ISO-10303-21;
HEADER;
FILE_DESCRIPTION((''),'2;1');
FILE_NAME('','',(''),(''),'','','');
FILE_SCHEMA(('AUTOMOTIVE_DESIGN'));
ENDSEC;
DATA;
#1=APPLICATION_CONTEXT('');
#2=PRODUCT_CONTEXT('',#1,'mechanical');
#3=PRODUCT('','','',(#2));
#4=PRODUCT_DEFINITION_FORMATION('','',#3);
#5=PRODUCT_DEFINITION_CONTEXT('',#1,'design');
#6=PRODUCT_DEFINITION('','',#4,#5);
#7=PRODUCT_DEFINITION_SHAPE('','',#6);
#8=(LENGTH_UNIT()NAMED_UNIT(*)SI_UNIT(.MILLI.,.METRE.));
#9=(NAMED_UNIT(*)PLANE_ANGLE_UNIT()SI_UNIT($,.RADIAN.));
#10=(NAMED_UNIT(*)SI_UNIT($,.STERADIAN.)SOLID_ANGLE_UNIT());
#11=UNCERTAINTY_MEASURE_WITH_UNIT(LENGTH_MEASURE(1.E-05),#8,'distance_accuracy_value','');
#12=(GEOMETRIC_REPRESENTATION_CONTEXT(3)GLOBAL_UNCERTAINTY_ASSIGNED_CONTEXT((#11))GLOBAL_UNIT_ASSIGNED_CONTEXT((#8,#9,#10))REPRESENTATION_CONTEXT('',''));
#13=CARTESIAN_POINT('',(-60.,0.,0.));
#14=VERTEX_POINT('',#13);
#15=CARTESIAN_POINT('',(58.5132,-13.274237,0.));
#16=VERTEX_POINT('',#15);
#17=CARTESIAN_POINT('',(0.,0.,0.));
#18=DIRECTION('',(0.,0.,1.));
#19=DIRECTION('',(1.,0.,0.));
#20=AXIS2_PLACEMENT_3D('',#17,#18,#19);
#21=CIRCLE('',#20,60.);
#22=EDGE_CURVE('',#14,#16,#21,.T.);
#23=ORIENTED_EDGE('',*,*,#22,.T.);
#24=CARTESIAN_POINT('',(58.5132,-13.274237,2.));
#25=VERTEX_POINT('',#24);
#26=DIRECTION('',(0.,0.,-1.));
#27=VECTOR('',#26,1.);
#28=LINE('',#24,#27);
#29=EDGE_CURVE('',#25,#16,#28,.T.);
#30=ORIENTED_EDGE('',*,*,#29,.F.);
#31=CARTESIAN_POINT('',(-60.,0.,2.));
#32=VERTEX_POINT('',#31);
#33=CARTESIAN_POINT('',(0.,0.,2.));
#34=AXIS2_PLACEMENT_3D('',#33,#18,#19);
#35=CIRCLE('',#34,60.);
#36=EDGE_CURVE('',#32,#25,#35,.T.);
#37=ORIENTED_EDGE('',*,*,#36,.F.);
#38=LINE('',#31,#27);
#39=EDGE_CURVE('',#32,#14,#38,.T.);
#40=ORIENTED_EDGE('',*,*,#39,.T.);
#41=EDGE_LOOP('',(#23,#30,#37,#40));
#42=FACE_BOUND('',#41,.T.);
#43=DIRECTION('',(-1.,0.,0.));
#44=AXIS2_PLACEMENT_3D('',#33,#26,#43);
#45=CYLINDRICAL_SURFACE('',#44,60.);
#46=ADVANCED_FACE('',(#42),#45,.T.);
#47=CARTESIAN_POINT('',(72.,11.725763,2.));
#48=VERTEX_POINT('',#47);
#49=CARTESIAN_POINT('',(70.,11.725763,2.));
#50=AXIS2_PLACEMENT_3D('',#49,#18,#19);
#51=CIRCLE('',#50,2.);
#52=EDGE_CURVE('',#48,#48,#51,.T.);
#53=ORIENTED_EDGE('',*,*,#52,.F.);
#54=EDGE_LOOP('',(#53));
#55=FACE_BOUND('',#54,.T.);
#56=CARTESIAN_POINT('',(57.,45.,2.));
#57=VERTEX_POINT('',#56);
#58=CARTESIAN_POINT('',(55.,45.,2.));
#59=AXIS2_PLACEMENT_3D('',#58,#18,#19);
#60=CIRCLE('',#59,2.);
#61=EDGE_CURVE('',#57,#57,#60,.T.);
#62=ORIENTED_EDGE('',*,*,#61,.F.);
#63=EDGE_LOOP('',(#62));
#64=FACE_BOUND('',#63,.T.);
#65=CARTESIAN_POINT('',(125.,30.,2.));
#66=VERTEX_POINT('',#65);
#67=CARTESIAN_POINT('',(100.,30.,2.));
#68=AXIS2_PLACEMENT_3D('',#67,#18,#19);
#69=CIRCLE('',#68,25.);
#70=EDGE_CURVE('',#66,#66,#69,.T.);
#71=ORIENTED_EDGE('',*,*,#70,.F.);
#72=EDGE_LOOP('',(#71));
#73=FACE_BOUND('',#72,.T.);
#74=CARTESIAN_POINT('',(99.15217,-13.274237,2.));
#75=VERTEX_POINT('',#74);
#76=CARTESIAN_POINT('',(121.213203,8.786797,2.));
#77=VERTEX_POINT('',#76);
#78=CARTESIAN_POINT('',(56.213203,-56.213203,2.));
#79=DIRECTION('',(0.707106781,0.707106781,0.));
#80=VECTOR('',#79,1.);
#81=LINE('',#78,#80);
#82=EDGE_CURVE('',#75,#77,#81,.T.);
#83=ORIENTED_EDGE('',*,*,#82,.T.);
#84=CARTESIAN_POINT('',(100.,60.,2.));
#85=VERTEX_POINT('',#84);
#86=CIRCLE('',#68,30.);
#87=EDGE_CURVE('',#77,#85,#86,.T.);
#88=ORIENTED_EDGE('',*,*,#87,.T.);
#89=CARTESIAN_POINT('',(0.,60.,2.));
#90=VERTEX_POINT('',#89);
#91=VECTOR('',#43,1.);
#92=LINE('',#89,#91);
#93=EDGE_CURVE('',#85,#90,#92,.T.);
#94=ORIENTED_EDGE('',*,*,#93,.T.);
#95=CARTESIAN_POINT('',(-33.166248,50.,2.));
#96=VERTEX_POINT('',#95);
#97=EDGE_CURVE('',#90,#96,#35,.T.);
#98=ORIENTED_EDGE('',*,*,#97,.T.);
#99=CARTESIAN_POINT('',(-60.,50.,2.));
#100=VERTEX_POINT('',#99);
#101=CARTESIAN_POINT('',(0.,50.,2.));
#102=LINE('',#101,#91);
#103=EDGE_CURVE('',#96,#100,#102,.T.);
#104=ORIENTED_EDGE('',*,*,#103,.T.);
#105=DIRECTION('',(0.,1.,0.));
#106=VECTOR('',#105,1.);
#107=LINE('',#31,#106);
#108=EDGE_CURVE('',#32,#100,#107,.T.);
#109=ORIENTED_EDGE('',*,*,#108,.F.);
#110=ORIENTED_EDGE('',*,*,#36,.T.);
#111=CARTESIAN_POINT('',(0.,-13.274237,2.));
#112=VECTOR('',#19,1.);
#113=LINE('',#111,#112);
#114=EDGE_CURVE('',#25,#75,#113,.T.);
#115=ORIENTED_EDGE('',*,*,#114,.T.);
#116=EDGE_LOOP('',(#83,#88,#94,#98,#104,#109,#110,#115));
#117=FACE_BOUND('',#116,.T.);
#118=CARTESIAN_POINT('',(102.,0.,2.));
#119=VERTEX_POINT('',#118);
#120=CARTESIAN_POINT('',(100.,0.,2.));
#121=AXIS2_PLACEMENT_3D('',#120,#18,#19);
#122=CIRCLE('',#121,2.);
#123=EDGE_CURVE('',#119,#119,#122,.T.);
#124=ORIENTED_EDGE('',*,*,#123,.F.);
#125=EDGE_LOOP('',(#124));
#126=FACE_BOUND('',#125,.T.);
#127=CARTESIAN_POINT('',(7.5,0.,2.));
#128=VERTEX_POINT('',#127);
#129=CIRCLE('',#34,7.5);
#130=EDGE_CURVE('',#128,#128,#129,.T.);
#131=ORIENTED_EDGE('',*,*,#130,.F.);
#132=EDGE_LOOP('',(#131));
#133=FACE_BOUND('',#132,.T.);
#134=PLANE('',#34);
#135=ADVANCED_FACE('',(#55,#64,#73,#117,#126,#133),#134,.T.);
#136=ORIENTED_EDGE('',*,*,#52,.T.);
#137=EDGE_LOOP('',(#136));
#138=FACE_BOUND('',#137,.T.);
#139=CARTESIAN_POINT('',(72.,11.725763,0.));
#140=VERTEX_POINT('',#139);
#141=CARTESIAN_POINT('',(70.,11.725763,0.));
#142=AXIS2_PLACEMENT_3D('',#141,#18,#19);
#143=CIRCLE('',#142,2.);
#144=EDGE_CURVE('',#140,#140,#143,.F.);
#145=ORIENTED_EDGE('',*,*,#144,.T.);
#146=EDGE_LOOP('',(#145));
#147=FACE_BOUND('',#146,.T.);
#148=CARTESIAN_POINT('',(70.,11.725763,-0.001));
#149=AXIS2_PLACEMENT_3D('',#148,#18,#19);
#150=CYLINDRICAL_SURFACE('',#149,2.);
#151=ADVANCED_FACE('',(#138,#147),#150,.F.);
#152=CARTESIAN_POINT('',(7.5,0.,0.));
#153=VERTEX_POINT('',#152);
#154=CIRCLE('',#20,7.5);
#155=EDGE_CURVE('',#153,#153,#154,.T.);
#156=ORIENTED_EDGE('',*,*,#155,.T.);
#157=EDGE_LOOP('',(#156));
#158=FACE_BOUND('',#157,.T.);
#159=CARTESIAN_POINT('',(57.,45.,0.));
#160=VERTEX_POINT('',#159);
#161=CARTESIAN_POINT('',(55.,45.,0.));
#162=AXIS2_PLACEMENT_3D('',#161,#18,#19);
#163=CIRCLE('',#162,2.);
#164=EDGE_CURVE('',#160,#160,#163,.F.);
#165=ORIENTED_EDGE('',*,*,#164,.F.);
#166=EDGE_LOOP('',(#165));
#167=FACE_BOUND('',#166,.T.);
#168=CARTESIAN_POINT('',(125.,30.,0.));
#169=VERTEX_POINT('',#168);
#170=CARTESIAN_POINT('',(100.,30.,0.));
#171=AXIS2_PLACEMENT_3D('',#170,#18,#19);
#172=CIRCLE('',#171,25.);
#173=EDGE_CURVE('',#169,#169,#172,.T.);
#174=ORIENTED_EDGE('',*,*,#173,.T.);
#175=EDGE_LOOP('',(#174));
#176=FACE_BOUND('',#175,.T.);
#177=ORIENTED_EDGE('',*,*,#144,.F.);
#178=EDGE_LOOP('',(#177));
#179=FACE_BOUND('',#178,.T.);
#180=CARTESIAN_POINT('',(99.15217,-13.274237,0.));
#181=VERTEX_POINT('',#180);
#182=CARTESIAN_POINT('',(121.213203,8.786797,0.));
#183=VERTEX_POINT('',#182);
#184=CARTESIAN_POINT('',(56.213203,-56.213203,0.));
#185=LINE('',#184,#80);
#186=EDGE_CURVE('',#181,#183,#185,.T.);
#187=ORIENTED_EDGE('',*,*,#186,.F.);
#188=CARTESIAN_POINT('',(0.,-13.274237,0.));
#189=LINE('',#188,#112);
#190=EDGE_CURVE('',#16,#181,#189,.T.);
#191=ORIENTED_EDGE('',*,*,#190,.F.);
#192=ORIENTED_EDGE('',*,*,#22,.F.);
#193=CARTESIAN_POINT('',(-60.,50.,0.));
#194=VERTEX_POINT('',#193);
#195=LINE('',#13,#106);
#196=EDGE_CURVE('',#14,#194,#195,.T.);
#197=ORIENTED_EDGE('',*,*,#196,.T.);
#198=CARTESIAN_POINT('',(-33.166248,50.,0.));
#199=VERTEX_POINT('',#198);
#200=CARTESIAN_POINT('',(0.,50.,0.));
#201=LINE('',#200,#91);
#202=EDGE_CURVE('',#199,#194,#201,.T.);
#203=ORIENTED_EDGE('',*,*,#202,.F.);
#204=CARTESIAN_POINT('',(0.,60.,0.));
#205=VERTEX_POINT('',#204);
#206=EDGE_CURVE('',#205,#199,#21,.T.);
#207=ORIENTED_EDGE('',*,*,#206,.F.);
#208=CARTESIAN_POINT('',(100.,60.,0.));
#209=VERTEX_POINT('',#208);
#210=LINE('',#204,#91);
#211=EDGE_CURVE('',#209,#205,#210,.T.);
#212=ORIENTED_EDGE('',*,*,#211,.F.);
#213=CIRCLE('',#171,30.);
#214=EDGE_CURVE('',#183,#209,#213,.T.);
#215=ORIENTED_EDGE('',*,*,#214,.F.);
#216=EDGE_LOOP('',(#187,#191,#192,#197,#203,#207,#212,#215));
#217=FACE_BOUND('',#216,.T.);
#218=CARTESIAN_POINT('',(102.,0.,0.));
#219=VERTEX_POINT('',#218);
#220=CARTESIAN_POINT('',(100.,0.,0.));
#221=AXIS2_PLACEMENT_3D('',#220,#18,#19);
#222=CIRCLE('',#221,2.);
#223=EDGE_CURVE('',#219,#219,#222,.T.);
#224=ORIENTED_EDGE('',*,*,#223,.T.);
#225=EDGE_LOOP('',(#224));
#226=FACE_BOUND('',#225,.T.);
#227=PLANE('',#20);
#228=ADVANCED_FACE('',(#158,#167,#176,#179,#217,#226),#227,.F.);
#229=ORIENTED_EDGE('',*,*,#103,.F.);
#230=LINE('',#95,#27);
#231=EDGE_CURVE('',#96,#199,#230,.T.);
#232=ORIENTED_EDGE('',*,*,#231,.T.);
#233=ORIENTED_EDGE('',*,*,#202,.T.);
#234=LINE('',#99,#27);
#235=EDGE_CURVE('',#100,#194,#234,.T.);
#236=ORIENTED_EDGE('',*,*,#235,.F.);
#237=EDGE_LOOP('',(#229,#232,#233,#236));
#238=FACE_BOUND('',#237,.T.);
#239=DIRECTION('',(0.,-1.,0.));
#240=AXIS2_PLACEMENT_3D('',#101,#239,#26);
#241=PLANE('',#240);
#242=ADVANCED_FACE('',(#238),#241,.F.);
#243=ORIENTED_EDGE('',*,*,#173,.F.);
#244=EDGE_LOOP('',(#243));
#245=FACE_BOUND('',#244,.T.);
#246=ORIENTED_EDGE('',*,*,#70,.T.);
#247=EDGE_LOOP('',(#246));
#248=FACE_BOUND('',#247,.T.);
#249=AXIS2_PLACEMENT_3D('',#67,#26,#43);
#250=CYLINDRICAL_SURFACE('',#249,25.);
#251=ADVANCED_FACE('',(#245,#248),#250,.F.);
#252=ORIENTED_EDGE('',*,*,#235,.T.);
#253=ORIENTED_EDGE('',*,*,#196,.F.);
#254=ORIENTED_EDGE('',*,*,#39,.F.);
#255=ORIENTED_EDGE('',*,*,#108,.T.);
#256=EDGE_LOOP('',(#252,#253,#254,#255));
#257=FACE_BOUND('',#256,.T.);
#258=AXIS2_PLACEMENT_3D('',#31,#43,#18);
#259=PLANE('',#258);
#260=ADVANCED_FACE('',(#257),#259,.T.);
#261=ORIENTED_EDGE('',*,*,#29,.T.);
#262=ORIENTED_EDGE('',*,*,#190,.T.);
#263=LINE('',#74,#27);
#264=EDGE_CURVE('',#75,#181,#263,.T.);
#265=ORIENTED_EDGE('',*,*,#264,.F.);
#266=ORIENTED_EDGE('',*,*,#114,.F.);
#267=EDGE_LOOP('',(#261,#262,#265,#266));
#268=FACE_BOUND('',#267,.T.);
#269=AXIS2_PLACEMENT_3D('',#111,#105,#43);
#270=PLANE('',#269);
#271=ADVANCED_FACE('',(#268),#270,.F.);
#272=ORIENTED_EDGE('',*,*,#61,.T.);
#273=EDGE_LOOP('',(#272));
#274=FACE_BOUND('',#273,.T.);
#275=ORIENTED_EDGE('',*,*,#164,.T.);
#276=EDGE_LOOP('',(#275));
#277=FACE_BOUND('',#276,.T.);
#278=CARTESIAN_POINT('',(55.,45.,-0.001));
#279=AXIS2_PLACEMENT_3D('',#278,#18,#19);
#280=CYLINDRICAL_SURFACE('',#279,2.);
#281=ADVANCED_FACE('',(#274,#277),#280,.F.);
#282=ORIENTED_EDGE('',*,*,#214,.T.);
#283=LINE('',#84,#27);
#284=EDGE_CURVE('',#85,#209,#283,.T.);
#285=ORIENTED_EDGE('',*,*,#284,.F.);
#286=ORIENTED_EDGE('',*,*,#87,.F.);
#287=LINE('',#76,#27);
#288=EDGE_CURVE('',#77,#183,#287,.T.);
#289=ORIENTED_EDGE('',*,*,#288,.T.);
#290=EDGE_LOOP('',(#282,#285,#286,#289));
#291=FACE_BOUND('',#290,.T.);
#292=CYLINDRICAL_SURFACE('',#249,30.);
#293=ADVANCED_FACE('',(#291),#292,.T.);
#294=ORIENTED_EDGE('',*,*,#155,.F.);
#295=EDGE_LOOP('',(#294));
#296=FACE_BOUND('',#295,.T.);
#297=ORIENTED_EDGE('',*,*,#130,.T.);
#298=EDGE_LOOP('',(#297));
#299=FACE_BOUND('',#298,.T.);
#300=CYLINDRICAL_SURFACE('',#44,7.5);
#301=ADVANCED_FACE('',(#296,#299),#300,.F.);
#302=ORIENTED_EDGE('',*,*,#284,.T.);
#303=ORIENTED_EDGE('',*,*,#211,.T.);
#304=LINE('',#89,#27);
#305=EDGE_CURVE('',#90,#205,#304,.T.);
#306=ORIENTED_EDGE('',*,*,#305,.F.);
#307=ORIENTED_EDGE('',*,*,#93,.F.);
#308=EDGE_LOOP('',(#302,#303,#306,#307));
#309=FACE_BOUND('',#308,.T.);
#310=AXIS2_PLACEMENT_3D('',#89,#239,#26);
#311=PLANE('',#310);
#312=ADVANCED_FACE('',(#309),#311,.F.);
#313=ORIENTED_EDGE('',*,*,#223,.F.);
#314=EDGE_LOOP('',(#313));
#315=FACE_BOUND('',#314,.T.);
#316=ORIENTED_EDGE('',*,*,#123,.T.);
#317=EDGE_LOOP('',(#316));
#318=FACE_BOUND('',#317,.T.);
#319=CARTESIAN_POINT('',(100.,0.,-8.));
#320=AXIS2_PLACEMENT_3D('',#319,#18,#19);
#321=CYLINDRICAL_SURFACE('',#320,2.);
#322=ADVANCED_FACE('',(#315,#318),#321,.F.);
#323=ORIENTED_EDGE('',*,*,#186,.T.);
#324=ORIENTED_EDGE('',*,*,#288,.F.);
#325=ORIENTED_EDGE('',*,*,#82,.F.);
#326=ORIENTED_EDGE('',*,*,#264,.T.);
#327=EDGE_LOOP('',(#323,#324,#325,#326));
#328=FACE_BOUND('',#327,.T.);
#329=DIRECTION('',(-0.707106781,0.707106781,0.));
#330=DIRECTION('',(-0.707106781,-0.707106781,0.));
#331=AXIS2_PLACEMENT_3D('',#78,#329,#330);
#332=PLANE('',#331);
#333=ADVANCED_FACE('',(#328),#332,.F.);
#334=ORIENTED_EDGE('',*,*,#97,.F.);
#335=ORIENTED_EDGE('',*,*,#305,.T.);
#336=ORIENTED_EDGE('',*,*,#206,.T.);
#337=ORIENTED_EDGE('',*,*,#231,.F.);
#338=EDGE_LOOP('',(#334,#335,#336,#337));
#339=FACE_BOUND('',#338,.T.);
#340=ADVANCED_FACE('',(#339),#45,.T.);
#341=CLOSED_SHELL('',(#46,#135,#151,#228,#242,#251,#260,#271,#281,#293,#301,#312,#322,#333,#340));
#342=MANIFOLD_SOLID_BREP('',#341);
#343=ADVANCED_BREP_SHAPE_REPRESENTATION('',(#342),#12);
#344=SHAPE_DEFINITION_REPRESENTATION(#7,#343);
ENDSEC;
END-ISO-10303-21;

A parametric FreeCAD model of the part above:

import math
import FreeCAD as App
import Part
import Sketcher

V = App.Vector
Q = App.Units.Quantity

doc = App.newDocument("Part")
body = doc.addObject("PartDesign::Body", "Body")

# Sketch on XY plane
sketch1 = body.newObject("Sketcher::SketchObject", "Sketch")
sketch1.AttachmentSupport = (doc.getObject("XY_Plane"), [""])
sketch1.MapMode = "FlatFace"
sketch1.addGeometry([
    Part.LineSegment(V(-33.166248, 50, 0), V(-60, 50, 0)),  # 0
    Part.LineSegment(V(-60, 50, 0), V(-60, 0, 0)),  # 1
    Part.ArcOfCircle(Part.Circle(V(0, 0, 0), V(0, 0, 1), 60), math.radians(180), math.radians(347.218285)),  # 2
    Part.LineSegment(V(58.5132, -13.274237, 0), V(99.15217, -13.274237, 0)),  # 3
    Part.LineSegment(V(99.15217, -13.274237, 0), V(121.213203, 8.786797, 0)),  # 4
    Part.ArcOfCircle(Part.Circle(V(100, 30, 0), V(0, 0, 1), 30), math.radians(-45), math.radians(90)),  # 5
    Part.LineSegment(V(100, 60, 0), V(0, 60, 0)),  # 6
    Part.ArcOfCircle(Part.Circle(V(0, 0, 0), V(0, 0, 1), 60), math.radians(90), math.radians(123.55731)),  # 7
    Part.Circle(V(100, 30, 0), V(0, 0, 1), 25),  # 8
    Part.Circle(V(0, 0, 0), V(0, 0, 1), 7.5),  # 9
], False)
sketch1.addConstraint([
    Sketcher.Constraint("Coincident", 0, 2, 1, 1),
    Sketcher.Constraint("Tangent", 1, 2, 2, 1),
    Sketcher.Constraint("Coincident", 2, 2, 3, 1),
    Sketcher.Constraint("Coincident", 3, 2, 4, 1),
    Sketcher.Constraint("Tangent", 4, 2, 5, 1),
    Sketcher.Constraint("Tangent", 5, 2, 6, 1),
    Sketcher.Constraint("Tangent", 6, 2, 7, 1),
    Sketcher.Constraint("Coincident", 7, 2, 0, 1),
    Sketcher.Constraint("Horizontal", 0),
    Sketcher.Constraint("Vertical", 1),
    Sketcher.Constraint("Horizontal", 3),
    Sketcher.Constraint("Horizontal", 6),
    Sketcher.Constraint("Coincident", 2, 3, -1, 1),
    Sketcher.Constraint("Coincident", 7, 3, -1, 1),
    Sketcher.Constraint("Coincident", 9, 3, -1, 1),
    Sketcher.Constraint("Coincident", 8, 3, 5, 3),
    Sketcher.Constraint("Equal", 2, 7),
    Sketcher.Constraint("Diameter", 8, 50.0),
    Sketcher.Constraint("Diameter", 9, 15.0),
    Sketcher.Constraint("Radius", 2, 60.0),
    Sketcher.Constraint("Radius", 5, 30.0),
    Sketcher.Constraint("DistanceX", 6, 2, 6, 1, 100.0),
    Sketcher.Constraint("DistanceY", 1, 2, 1, 1, 50.0),
    Sketcher.Constraint("Angle", 4, Q("45 deg")),
    Sketcher.Constraint("DistanceX", 3, 1, 3, 2, 40.638969),
])
pad1 = body.newObject("PartDesign::Pad", "Pad")
pad1.Profile = sketch1
pad1.Length = 2

# Sketch on XY plane
sketch2 = body.newObject("Sketcher::SketchObject", "Sketch001")
sketch2.AttachmentSupport = (doc.getObject("XY_Plane"), [""])
sketch2.MapMode = "FlatFace"
sketch2.AttachmentOffset = App.Placement(V(0, 0, 2), App.Rotation())
sketch2.addGeometry(Part.Circle(V(55, 45, 0), V(0, 0, 1), 2), False)
sketch2.addConstraint([
    Sketcher.Constraint("Diameter", 0, 4.0),
    Sketcher.Constraint("DistanceX", -1, 1, 0, 3, 55.0),
    Sketcher.Constraint("DistanceY", -1, 1, 0, 3, 45.0),
])
pocket1 = body.newObject("PartDesign::Pocket", "Pocket")
pocket1.Profile = sketch2
pocket1.Type = "UpToFirst"

# Sketch on XY plane
sketch3 = body.newObject("Sketcher::SketchObject", "Sketch002")
sketch3.AttachmentSupport = (doc.getObject("XY_Plane"), [""])
sketch3.MapMode = "FlatFace"
sketch3.AttachmentOffset = App.Placement(V(0, 0, 2), App.Rotation())
sketch3.addGeometry(Part.Circle(V(70, 11.725763, 0), V(0, 0, 1), 2), False)
sketch3.addConstraint([
    Sketcher.Constraint("Diameter", 0, 4.0),
    Sketcher.Constraint("DistanceX", -1, 1, 0, 3, 70.0),
    Sketcher.Constraint("DistanceY", -1, 1, 0, 3, 11.725763),
])
pocket2 = body.newObject("PartDesign::Pocket", "Pocket001")
pocket2.Profile = sketch3
pocket2.Type = "UpToFirst"

# Sketch on XY plane
sketch4 = body.newObject("Sketcher::SketchObject", "Sketch003")
sketch4.AttachmentSupport = (doc.getObject("XY_Plane"), [""])
sketch4.MapMode = "FlatFace"
sketch4.AttachmentOffset = App.Placement(V(0, 0, 2), App.Rotation())
sketch4.addGeometry(Part.Circle(V(100, 0, 0), V(0, 0, 1), 2), False)
sketch4.addConstraint([
    Sketcher.Constraint("PointOnObject", 0, 3, -1),
    Sketcher.Constraint("Diameter", 0, 4.0),
    Sketcher.Constraint("DistanceX", -1, 1, 0, 3, 100.0),
])
pocket3 = body.newObject("PartDesign::Pocket", "Pocket002")
pocket3.Profile = sketch4
pocket3.Length = 10

doc.recompute()
